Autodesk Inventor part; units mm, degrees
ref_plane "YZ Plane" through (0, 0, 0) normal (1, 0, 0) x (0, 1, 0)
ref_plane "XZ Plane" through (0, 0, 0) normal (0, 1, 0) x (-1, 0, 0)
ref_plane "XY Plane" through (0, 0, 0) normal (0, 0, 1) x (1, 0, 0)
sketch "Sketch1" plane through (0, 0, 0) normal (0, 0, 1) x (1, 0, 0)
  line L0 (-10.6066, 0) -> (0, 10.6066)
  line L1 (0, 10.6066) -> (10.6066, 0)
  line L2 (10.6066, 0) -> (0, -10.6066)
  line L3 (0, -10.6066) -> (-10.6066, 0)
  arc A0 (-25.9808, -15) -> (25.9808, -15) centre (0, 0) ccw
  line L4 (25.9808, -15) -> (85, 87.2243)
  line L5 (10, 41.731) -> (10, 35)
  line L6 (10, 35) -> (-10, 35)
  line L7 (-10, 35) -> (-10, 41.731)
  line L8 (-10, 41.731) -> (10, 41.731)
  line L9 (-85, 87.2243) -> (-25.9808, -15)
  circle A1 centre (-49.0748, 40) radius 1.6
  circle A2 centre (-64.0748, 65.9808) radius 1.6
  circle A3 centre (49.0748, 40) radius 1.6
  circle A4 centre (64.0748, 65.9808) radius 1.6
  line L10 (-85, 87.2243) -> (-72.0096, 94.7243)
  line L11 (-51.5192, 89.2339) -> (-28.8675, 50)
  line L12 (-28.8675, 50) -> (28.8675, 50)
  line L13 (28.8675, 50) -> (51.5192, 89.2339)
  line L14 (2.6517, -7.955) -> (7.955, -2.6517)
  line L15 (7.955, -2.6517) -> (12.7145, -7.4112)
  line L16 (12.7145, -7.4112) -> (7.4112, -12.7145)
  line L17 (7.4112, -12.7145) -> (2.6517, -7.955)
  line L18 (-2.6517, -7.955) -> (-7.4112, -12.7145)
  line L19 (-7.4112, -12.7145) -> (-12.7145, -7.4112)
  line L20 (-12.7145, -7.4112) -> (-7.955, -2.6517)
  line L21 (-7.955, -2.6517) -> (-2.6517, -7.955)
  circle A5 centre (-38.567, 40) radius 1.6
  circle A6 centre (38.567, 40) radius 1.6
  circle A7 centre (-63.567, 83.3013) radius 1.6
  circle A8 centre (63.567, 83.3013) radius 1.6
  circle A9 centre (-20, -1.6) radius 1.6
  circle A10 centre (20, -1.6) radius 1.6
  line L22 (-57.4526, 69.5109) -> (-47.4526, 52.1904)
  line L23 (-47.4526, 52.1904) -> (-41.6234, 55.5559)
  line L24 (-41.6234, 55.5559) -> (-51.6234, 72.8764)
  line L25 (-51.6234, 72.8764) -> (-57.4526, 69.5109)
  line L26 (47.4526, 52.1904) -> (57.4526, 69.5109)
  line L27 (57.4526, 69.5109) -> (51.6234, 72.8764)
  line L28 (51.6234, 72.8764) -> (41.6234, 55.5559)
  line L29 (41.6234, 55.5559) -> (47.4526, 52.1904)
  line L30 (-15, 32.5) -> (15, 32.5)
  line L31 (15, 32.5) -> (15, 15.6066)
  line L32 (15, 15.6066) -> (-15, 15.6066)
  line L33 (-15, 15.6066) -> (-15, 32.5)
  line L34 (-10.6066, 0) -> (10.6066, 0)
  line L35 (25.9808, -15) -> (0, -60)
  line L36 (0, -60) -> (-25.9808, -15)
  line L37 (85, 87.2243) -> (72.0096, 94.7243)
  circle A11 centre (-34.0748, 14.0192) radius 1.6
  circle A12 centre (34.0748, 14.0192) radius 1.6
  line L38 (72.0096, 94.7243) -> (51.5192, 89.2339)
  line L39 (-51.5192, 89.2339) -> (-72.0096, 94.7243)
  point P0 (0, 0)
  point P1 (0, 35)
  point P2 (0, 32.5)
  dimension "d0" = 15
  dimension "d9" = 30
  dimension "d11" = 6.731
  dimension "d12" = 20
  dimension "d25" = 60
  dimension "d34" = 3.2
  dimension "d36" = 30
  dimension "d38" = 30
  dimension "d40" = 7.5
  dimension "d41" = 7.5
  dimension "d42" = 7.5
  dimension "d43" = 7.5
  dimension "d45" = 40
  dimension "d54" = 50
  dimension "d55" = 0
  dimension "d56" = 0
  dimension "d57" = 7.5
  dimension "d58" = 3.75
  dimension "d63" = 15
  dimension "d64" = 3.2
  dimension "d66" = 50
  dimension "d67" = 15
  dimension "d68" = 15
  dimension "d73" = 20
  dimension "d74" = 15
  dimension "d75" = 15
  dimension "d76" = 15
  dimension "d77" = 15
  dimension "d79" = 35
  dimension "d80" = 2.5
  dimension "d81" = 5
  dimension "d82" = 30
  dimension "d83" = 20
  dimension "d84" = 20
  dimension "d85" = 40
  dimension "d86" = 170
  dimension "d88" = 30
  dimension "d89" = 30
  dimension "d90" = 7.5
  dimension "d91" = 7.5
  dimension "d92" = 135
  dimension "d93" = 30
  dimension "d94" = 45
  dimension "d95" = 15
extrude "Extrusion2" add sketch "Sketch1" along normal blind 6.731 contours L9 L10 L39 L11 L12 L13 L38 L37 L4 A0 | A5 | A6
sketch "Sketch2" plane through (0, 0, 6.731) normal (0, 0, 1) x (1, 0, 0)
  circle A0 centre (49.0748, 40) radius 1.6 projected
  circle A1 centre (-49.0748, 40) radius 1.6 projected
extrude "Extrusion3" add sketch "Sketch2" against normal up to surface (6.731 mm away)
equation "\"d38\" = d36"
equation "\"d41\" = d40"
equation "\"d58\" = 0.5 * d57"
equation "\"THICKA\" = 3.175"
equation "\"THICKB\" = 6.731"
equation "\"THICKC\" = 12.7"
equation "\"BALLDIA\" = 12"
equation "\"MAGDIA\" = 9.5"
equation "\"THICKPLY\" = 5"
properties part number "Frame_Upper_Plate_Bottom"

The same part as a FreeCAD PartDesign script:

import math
import FreeCAD as App
import Part
import Sketcher

V = App.Vector
Q = App.Units.Quantity

doc = App.newDocument("Part")
params = doc.addObject("Spreadsheet::Sheet", "Params")
for row, (alias, value) in enumerate([
    ("sketch1_radius", "30 mm"),
    ("sketch1_diameter", "3.2 mm"),
    ("sketch1_width", "30 mm"),
    ("sketch1_width2", "20 mm"),
    ("sketch1_length", "15 mm"),
    ("pad1_length", "6.731 mm"),
    ("sketch2_diameter", "3.2 mm"),
    ("pad2_length", "6.731 mm"),
], start=1):
    params.set(f"A{row}", alias)
    params.set(f"B{row}", "=" + value)
    params.setAlias(f"B{row}", alias)

body = doc.addObject("PartDesign::Body", "Body")

sketch1 = body.newObject("Sketcher::SketchObject", "Sketch")
sketch1.AttachmentSupport = (doc.getObject("XY_Plane"), [""])
sketch1.MapMode = "FlatFace"
sketch1.addGeometry(Part.LineSegment(V(-85, 87.2, 0), V(-26, -15, 0)), False)
sketch1.addGeometry(Part.ArcOfCircle(Part.Circle(V(0, 0, 0), V(0, 0, 1), 30), math.radians(-150), math.radians(-30)), False)
sketch1.addGeometry(Part.LineSegment(V(26, -15, 0), V(85, 87.2, 0)), False)
sketch1.addGeometry(Part.LineSegment(V(85, 87.2, 0), V(72, 94.7, 0)), False)
sketch1.addGeometry(Part.LineSegment(V(72, 94.7, 0), V(51.5, 89.2, 0)), False)
sketch1.addGeometry(Part.LineSegment(V(51.5, 89.2, 0), V(28.9, 50, 0)), False)
sketch1.addGeometry(Part.LineSegment(V(28.9, 50, 0), V(-28.9, 50, 0)), False)
sketch1.addGeometry(Part.LineSegment(V(-28.9, 50, 0), V(-51.5, 89.2, 0)), False)
sketch1.addGeometry(Part.LineSegment(V(-51.5, 89.2, 0), V(-72, 94.7, 0)), False)
sketch1.addGeometry(Part.LineSegment(V(-72, 94.7, 0), V(-85, 87.2, 0)), False)
sketch1.addGeometry(Part.Circle(V(-34.1, 14, 0), V(0, 0, 1), 1.6), False)
sketch1.addGeometry(Part.Circle(V(-20, -1.6, 0), V(0, 0, 1), 1.6), False)
sketch1.addGeometry(Part.LineSegment(V(-8, -2.7, 0), V(-10.6, 0, 0)), False)
sketch1.addGeometry(Part.LineSegment(V(-10.6, 0, 0), V(0, 10.6, 0)), False)
sketch1.addGeometry(Part.LineSegment(V(0, 10.6, 0), V(10.6, 0, 0)), False)
sketch1.addGeometry(Part.LineSegment(V(10.6, 0, 0), V(8, -2.7, 0)), False)
sketch1.addGeometry(Part.LineSegment(V(8, -2.7, 0), V(12.7, -7.4, 0)), False)
sketch1.addGeometry(Part.LineSegment(V(12.7, -7.4, 0), V(7.4, -12.7, 0)), False)
sketch1.addGeometry(Part.LineSegment(V(7.4, -12.7, 0), V(2.7, -8, 0)), False)
sketch1.addGeometry(Part.LineSegment(V(2.7, -8, 0), V(0, -10.6, 0)), False)
sketch1.addGeometry(Part.LineSegment(V(0, -10.6, 0), V(-2.7, -8, 0)), False)
sketch1.addGeometry(Part.LineSegment(V(-2.7, -8, 0), V(-7.4, -12.7, 0)), False)
sketch1.addGeometry(Part.LineSegment(V(-7.4, -12.7, 0), V(-12.7, -7.4, 0)), False)
sketch1.addGeometry(Part.LineSegment(V(-12.7, -7.4, 0), V(-8, -2.7, 0)), False)
sketch1.addGeometry(Part.Circle(V(20, -1.6, 0), V(0, 0, 1), 1.6), False)
sketch1.addGeometry(Part.Circle(V(34.1, 14, 0), V(0, 0, 1), 1.6), False)
sketch1.addGeometry(Part.Circle(V(-49.1, 40, 0), V(0, 0, 1), 1.6), False)
sketch1.addGeometry(Part.Circle(V(-64.1, 66, 0), V(0, 0, 1), 1.6), False)
sketch1.addGeometry(Part.LineSegment(V(-47.5, 52.2, 0), V(-57.5, 69.5, 0)), False)
sketch1.addGeometry(Part.LineSegment(V(-57.5, 69.5, 0), V(-51.6, 72.9, 0)), False)
sketch1.addGeometry(Part.LineSegment(V(-51.6, 72.9, 0), V(-41.6, 55.6, 0)), False)
sketch1.addGeometry(Part.LineSegment(V(-41.6, 55.6, 0), V(-47.5, 52.2, 0)), False)
sketch1.addGeometry(Part.Circle(V(-63.6, 83.3, 0), V(0, 0, 1), 1.6), False)
sketch1.addGeometry(Part.LineSegment(V(-15, 15.6, 0), V(-15, 32.5, 0)), False)
sketch1.addGeometry(Part.LineSegment(V(-15, 32.5, 0), V(15, 32.5, 0)), False)
sketch1.addGeometry(Part.LineSegment(V(15, 32.5, 0), V(15, 15.6, 0)), False)
sketch1.addGeometry(Part.LineSegment(V(15, 15.6, 0), V(-15, 15.6, 0)), False)
sketch1.addGeometry(Part.LineSegment(V(-10, 41.7, 0), V(10, 41.7, 0)), False)
sketch1.addGeometry(Part.LineSegment(V(10, 41.7, 0), V(10, 35, 0)), False)
sketch1.addGeometry(Part.LineSegment(V(10, 35, 0), V(-10, 35, 0)), False)
sketch1.addGeometry(Part.LineSegment(V(-10, 35, 0), V(-10, 41.7, 0)), False)
sketch1.addGeometry(Part.Circle(V(49.1, 40, 0), V(0, 0, 1), 1.6), False)
sketch1.addGeometry(Part.LineSegment(V(57.5, 69.5, 0), V(47.5, 52.2, 0)), False)
sketch1.addGeometry(Part.LineSegment(V(47.5, 52.2, 0), V(41.6, 55.6, 0)), False)
sketch1.addGeometry(Part.LineSegment(V(41.6, 55.6, 0), V(51.6, 72.9, 0)), False)
sketch1.addGeometry(Part.LineSegment(V(51.6, 72.9, 0), V(57.5, 69.5, 0)), False)
sketch1.addGeometry(Part.Circle(V(64.1, 66, 0), V(0, 0, 1), 1.6), False)
sketch1.addGeometry(Part.Circle(V(63.6, 83.3, 0), V(0, 0, 1), 1.6), False)
sketch1.addConstraint(Sketcher.Constraint("Tangent", 0, 2, 1, 1))
sketch1.addConstraint(Sketcher.Constraint("Tangent", 1, 2, 2, 1))
sketch1.addConstraint(Sketcher.Constraint("Coincident", 2, 2, 3, 1))
sketch1.addConstraint(Sketcher.Constraint("Coincident", 3, 2, 4, 1))
sketch1.addConstraint(Sketcher.Constraint("Coincident", 4, 2, 5, 1))
sketch1.addConstraint(Sketcher.Constraint("Coincident", 5, 2, 6, 1))
sketch1.addConstraint(Sketcher.Constraint("Coincident", 6, 2, 7, 1))
sketch1.addConstraint(Sketcher.Constraint("Coincident", 7, 2, 8, 1))
sketch1.addConstraint(Sketcher.Constraint("Coincident", 8, 2, 9, 1))
sketch1.addConstraint(Sketcher.Constraint("Coincident", 9, 2, 0, 1))
sketch1.addConstraint(Sketcher.Constraint("Coincident", 12, 2, 13, 1))
sketch1.addConstraint(Sketcher.Constraint("Coincident", 13, 2, 14, 1))
sketch1.addConstraint(Sketcher.Constraint("Coincident", 14, 2, 15, 1))
sketch1.addConstraint(Sketcher.Constraint("Coincident", 15, 2, 16, 1))
sketch1.addConstraint(Sketcher.Constraint("Coincident", 16, 2, 17, 1))
sketch1.addConstraint(Sketcher.Constraint("Coincident", 17, 2, 18, 1))
sketch1.addConstraint(Sketcher.Constraint("Coincident", 18, 2, 19, 1))
sketch1.addConstraint(Sketcher.Constraint("Coincident", 19, 2, 20, 1))
sketch1.addConstraint(Sketcher.Constraint("Coincident", 20, 2, 21, 1))
sketch1.addConstraint(Sketcher.Constraint("Coincident", 21, 2, 22, 1))
sketch1.addConstraint(Sketcher.Constraint("Coincident", 22, 2, 23, 1))
sketch1.addConstraint(Sketcher.Constraint("Coincident", 23, 2, 12, 1))
sketch1.addConstraint(Sketcher.Constraint("Coincident", 28, 2, 29, 1))
sketch1.addConstraint(Sketcher.Constraint("Coincident", 29, 2, 30, 1))
sketch1.addConstraint(Sketcher.Constraint("Coincident", 30, 2, 31, 1))
sketch1.addConstraint(Sketcher.Constraint("Coincident", 31, 2, 28, 1))
sketch1.addConstraint(Sketcher.Constraint("Coincident", 33, 2, 34, 1))
sketch1.addConstraint(Sketcher.Constraint("Coincident", 34, 2, 35, 1))
sketch1.addConstraint(Sketcher.Constraint("Coincident", 35, 2, 36, 1))
sketch1.addConstraint(Sketcher.Constraint("Coincident", 36, 2, 33, 1))
sketch1.addConstraint(Sketcher.Constraint("Coincident", 37, 2, 38, 1))
sketch1.addConstraint(Sketcher.Constraint("Coincident", 38, 2, 39, 1))
sketch1.addConstraint(Sketcher.Constraint("Coincident", 39, 2, 40, 1))
sketch1.addConstraint(Sketcher.Constraint("Coincident", 40, 2, 37, 1))
sketch1.addConstraint(Sketcher.Constraint("Coincident", 42, 2, 43, 1))
sketch1.addConstraint(Sketcher.Constraint("Coincident", 43, 2, 44, 1))
sketch1.addConstraint(Sketcher.Constraint("Coincident", 44, 2, 45, 1))
sketch1.addConstraint(Sketcher.Constraint("Coincident", 45, 2, 42, 1))
sketch1.addConstraint(Sketcher.Constraint("Horizontal", 6))
sketch1.addConstraint(Sketcher.Constraint("Vertical", 33))
sketch1.addConstraint(Sketcher.Constraint("Horizontal", 34))
sketch1.addConstraint(Sketcher.Constraint("Vertical", 35))
sketch1.addConstraint(Sketcher.Constraint("Horizontal", 36))
sketch1.addConstraint(Sketcher.Constraint("Horizontal", 37))
sketch1.addConstraint(Sketcher.Constraint("Vertical", 38))
sketch1.addConstraint(Sketcher.Constraint("Horizontal", 39))
sketch1.addConstraint(Sketcher.Constraint("Vertical", 40))
sketch1.addConstraint(Sketcher.Constraint("Coincident", 1, 3, -1, 1))
sketch1.addConstraint(Sketcher.Constraint("Equal", 10, 11))
sketch1.addConstraint(Sketcher.Constraint("Equal", 11, 24))
sketch1.addConstraint(Sketcher.Constraint("Equal", 24, 25))
sketch1.addConstraint(Sketcher.Constraint("Equal", 25, 26))
sketch1.addConstraint(Sketcher.Constraint("Equal", 26, 27))
sketch1.addConstraint(Sketcher.Constraint("Equal", 27, 32))
sketch1.addConstraint(Sketcher.Constraint("Equal", 32, 41))
sketch1.addConstraint(Sketcher.Constraint("Equal", 41, 46))
sketch1.addConstraint(Sketcher.Constraint("Equal", 46, 47))
sketch1.addConstraint(Sketcher.Constraint("Symmetric", 12, 2, 14, 2, -1, 1))
sketch1.addConstraint(Sketcher.Constraint("Symmetric", 13, 2, 19, 2, -1, 1))
sketch1.addConstraint(Sketcher.Constraint("Symmetric", 11, 3, 24, 3, -2))
sketch1.addConstraint(Sketcher.Constraint("Symmetric", 10, 3, 25, 3, -2))
sketch1.addConstraint(Sketcher.Constraint("Symmetric", 26, 3, 41, 3, -2))
sketch1.addConstraint(Sketcher.Constraint("Symmetric", 27, 3, 46, 3, -2))
sketch1.addConstraint(Sketcher.Constraint("Symmetric", 32, 3, 47, 3, -2))
sketch1.addConstraint(Sketcher.Constraint("Symmetric", 4, 2, 7, 2, -2))
sketch1.addConstraint(Sketcher.Constraint("Symmetric", 3, 2, 8, 2, -2))
sketch1.addConstraint(Sketcher.Constraint("Symmetric", 2, 2, 9, 2, -2))
sketch1.addConstraint(Sketcher.Constraint("Symmetric", 18, 2, 20, 2, -2))
sketch1.addConstraint(Sketcher.Constraint("Symmetric", 17, 2, 21, 2, -2))
sketch1.addConstraint(Sketcher.Constraint("Symmetric", 16, 2, 22, 2, -2))
sketch1.addConstraint(Sketcher.Constraint("Symmetric", 15, 2, 23, 2, -2))
sketch1.addConstraint(Sketcher.Constraint("Symmetric", 31, 2, 42, 2, -2))
sketch1.addConstraint(Sketcher.Constraint("Symmetric", 30, 2, 43, 2, -2))
sketch1.addConstraint(Sketcher.Constraint("Symmetric", 29, 2, 44, 2, -2))
sketch1.addConstraint(Sketcher.Constraint("Symmetric", 28, 2, 45, 2, -2))
sketch1.addConstraint(Sketcher.Constraint("PointOnObject", 12, 2, -1))
sketch1.addConstraint(Sketcher.Constraint("PointOnObject", 13, 2, -2))
sketch1.addConstraint(Sketcher.Constraint("Perpendicular", 2, 3))
sketch1.addConstraint(Sketcher.Constraint("Perpendicular", 3, 5))
sketch1.addConstraint(Sketcher.Constraint("Parallel", 0, 7))
sketch1.addConstraint(Sketcher.Constraint("Perpendicular", 12, 13))
sketch1.addConstraint(Sketcher.Constraint("Perpendicular", 13, 14))
sketch1.addConstraint(Sketcher.Constraint("Perpendicular", 15, 16))
sketch1.addConstraint(Sketcher.Constraint("Perpendicular", 16, 17))
sketch1.addConstraint(Sketcher.Constraint("Perpendicular", 17, 18))
sketch1.addConstraint(Sketcher.Constraint("Perpendicular", 18, 19))
sketch1.addConstraint(Sketcher.Constraint("Perpendicular", 9, 28))
sketch1.addConstraint(Sketcher.Constraint("Perpendicular", 28, 29))
sketch1.addConstraint(Sketcher.Constraint("Perpendicular", 29, 30))
sketch1.addConstraint(Sketcher.Constraint("Perpendicular", 30, 31))
sketch1.addConstraint(Sketcher.Constraint("Equal", 9, 13))
sketch1.addConstraint(Sketcher.Constraint("Equal", 15, 19))
sketch1.addConstraint(Sketcher.Constraint("Equal", 23, 29))
sketch1.addConstraint(Sketcher.Constraint("Radius", 1, 30.0))
sketch1.addConstraint(Sketcher.Constraint("Diameter", 10, 3.2))
sketch1.addConstraint(Sketcher.Constraint("DistanceX", 34, 1, 34, 2, 30.0))
sketch1.addConstraint(Sketcher.Constraint("DistanceX", 37, 1, 37, 2, 20.0))
sketch1.addConstraint(Sketcher.Constraint("Angle", 0, Q("-60 deg")))
sketch1.addConstraint(Sketcher.Constraint("Distance", 3, 15.0))
sketch1.addConstraint(Sketcher.Constraint("Distance", 28, 20.0))
sketch1.addConstraint(Sketcher.Constraint("DistanceX", 11, 3, -1, 1, 20.0))
sketch1.addConstraint(Sketcher.Constraint("DistanceY", -1, 1, 26, 3, 40.0))
sketch1.addConstraint(Sketcher.Constraint("DistanceY", -1, 1, 5, 2, 50.0))
sketch1.addConstraint(Sketcher.Constraint("DistanceX", 33, 2, -1, 1, 15.0))
sketch1.addConstraint(Sketcher.Constraint("DistanceY", -1, 1, 38, 2, 35.0))
sketch1.addConstraint(Sketcher.Constraint("DistanceX", 26, 3, 10, 3, 15.0))
sketch1.addConstraint(Sketcher.Constraint("DistanceX", 27, 3, 26, 3, 15.0))
sketch1.addConstraint(Sketcher.Constraint("DistanceY", 13, 2, 35, 2, 5.0))
sketch1.addConstraint(Sketcher.Constraint("DistanceX", 37, 2, 34, 2, 5.0))
sketch1.addConstraint(Sketcher.Constraint("Distance", 17, 7.5))
sketch1.addConstraint(Sketcher.Constraint("DistanceY", 34, 2, 38, 2, 2.5))
sketch1.addConstraint(Sketcher.Constraint("DistanceY", 38, 2, 38, 1, 6.731))
sketch1.addConstraint(Sketcher.Constraint("Angle", 4, Q("-165 deg")))
sketch1.addConstraint(Sketcher.Constraint("Distance", 16, 6.731))
sketch1.addConstraint(Sketcher.Constraint("DistanceX", -1, 1, 2, 2, 85.0))
sketch1.addConstraint(Sketcher.Constraint("DistanceY", 11, 3, -1, 1, 1.6))
sketch1.addConstraint(Sketcher.Constraint("DistanceX", 6, 2, 6, 1, 57.735))
sketch1.addConstraint(Sketcher.Constraint("DistanceY", 27, 3, 28, 2, 3.53))
sketch1.addConstraint(Sketcher.Constraint("DistanceX", 32, 3, -1, 1, 63.567))
sketch1.addConstraint(Sketcher.Constraint("DistanceY", -1, 1, 28, 2, 69.511))
sketch1.addConstraint(Sketcher.Constraint("DistanceY", 10, 3, 32, 3, 69.282))
sketch1.addConstraint(Sketcher.Constraint("DistanceX", 10, 3, 0, 2, 8.094))
sketch1.addConstraint(Sketcher.Constraint("DistanceY", 47, 3, 2, 2, 3.923))
sketch1.addConstraint(Sketcher.Constraint("DistanceX", 8, 2, 28, 2, 14.557))
sketch1.setExpression("Constraints[93]", "Params.sketch1_radius")
sketch1.setExpression("Constraints[94]", "Params.sketch1_diameter")
sketch1.setExpression("Constraints[95]", "Params.sketch1_width")
sketch1.setExpression("Constraints[96]", "Params.sketch1_width2")
sketch1.setExpression("Constraints[98]", "Params.sketch1_length")
pad1 = body.newObject("PartDesign::Pad", "Pad")
pad1.Profile = sketch1
pad1.setExpression("Length", "Params.pad1_length")

sketch2 = body.newObject("Sketcher::SketchObject", "Sketch001")
sketch2.AttachmentSupport = (doc.getObject("XY_Plane"), [""])
sketch2.MapMode = "FlatFace"
sketch2.AttachmentOffset = App.Placement(V(0, 0, 6.731), App.Rotation())
sketch2.addGeometry(Part.Circle(V(49.1, 40, 0), V(0, 0, 1), 1.6), False)
sketch2.addGeometry(Part.Circle(V(-49.1, 40, 0), V(0, 0, 1), 1.6), False)
sketch2.addConstraint(Sketcher.Constraint("Equal", 0, 1))
sketch2.addConstraint(Sketcher.Constraint("Symmetric", 0, 3, 1, 3, -2))
sketch2.addConstraint(Sketcher.Constraint("Diameter", 0, 3.2))
sketch2.addConstraint(Sketcher.Constraint("DistanceY", -1, 1, 0, 3, 40.0))
sketch2.addConstraint(Sketcher.Constraint("DistanceX", -1, 1, 0, 3, 49.0748))
sketch2.setExpression("Constraints[2]", "Params.sketch2_diameter")
pad2 = body.newObject("PartDesign::Pad", "Pad001")
pad2.Profile = sketch2
pad2.setExpression("Length", "Params.pad2_length")
pad2.Reversed = True

doc.recompute()
